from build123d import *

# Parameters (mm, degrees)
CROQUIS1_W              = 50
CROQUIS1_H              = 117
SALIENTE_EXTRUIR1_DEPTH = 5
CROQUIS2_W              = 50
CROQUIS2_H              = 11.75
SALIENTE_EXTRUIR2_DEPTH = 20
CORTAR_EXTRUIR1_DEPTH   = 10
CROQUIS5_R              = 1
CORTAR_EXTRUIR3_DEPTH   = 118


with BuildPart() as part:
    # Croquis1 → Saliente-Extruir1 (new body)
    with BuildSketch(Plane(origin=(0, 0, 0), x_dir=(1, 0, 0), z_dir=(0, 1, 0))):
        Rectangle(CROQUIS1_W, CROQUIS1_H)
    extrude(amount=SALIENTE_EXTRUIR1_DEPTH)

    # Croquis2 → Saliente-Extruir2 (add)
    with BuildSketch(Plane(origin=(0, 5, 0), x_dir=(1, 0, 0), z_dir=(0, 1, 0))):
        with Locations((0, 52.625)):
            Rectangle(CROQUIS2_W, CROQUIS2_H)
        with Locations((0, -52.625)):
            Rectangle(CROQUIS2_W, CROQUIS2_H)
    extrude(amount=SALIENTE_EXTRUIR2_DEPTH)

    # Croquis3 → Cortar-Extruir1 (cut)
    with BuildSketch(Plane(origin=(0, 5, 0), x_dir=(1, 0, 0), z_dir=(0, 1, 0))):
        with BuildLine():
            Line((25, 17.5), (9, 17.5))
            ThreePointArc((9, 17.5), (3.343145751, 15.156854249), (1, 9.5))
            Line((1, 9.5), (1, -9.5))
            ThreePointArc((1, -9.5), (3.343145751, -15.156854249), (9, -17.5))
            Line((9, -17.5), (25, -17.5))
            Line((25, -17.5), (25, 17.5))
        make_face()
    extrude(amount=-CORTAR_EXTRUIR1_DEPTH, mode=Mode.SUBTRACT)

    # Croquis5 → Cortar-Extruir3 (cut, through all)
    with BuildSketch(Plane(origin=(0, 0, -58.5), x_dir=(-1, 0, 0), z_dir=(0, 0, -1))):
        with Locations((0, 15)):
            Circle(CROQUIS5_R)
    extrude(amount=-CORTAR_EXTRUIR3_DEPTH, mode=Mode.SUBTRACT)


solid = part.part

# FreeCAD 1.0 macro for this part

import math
import FreeCAD as App
import Part
import Sketcher


def add_polygon(sketch, points):
    """Adds a closed chain of lines whose ends are joined by coincident constraints."""
    first, n = sketch.GeometryCount, len(points)
    for a, b in zip(points, points[1:] + points[:1]):
        sketch.addGeometry(Part.LineSegment(App.Vector(*a, 0), App.Vector(*b, 0)), False)
    for i in range(n):
        sketch.addConstraint(Sketcher.Constraint("Coincident", first + i, 2, first + (i + 1) % n, 1))

doc = App.newDocument("Part")
body = doc.addObject("PartDesign::Body", "Body")

# Sketch on XZ plane
sketch1 = body.newObject("Sketcher::SketchObject", "Sketch")
sketch1.AttachmentSupport = (doc.getObject("XZ_Plane"), [""])
sketch1.MapMode = "FlatFace"
add_polygon(sketch1, [(-25, -58.5), (-25, 58.5), (25, 58.5), (25, -58.5)])  # lines 0-3
sketch1.addConstraint(Sketcher.Constraint("Vertical", 0))
sketch1.addConstraint(Sketcher.Constraint("Horizontal", 1))
sketch1.addConstraint(Sketcher.Constraint("Vertical", 2))
sketch1.addConstraint(Sketcher.Constraint("Horizontal", 3))
sketch1.addConstraint(Sketcher.Constraint("Symmetric", 0, 2, 2, 2, -1, 1))
sketch1.addConstraint(Sketcher.Constraint("DistanceX", 1, 1, 1, 2, 50.0))
sketch1.addConstraint(Sketcher.Constraint("DistanceY", 0, 1, 0, 2, 117.0))
pad1 = body.newObject("PartDesign::Pad", "Pad")
pad1.Profile = sketch1
pad1.Length = 5
pad1.Reversed = True

# Sketch on XZ plane
sketch2 = body.newObject("Sketcher::SketchObject", "Sketch001")
sketch2.AttachmentSupport = (doc.getObject("XZ_Plane"), [""])
sketch2.MapMode = "FlatFace"
sketch2.AttachmentOffset = App.Placement(App.Vector(0, 0, -5), App.Rotation())
add_polygon(sketch2, [(-25, -58.5), (-25, -46.75), (25, -46.75), (25, -58.5)])  # lines 0-3
add_polygon(sketch2, [(-25, 46.75), (-25, 58.5), (25, 58.5), (25, 46.75)])  # lines 4-7
sketch2.addConstraint(Sketcher.Constraint("Vertical", 0))
sketch2.addConstraint(Sketcher.Constraint("Horizontal", 1))
sketch2.addConstraint(Sketcher.Constraint("Vertical", 2))
sketch2.addConstraint(Sketcher.Constraint("Horizontal", 3))
sketch2.addConstraint(Sketcher.Constraint("Vertical", 4))
sketch2.addConstraint(Sketcher.Constraint("Horizontal", 5))
sketch2.addConstraint(Sketcher.Constraint("Vertical", 6))
sketch2.addConstraint(Sketcher.Constraint("Horizontal", 7))
sketch2.addConstraint(Sketcher.Constraint("Symmetric", 2, 2, 4, 2, -1, 1))
sketch2.addConstraint(Sketcher.Constraint("Symmetric", 0, 2, 6, 2, -1, 1))
sketch2.addConstraint(Sketcher.Constraint("Vertical", 3, 2, 4, 2))
sketch2.addConstraint(Sketcher.Constraint("DistanceX", 1, 1, 1, 2, 50.0))
sketch2.addConstraint(Sketcher.Constraint("DistanceY", 3, 2, 4, 2, 117.0))
sketch2.addConstraint(Sketcher.Constraint("DistanceY", 0, 1, 0, 2, 11.75))
pad2 = body.newObject("PartDesign::Pad", "Pad001")
pad2.Profile = sketch2
pad2.Length = 20
pad2.Reversed = True

# Sketch on XZ plane
sketch3 = body.newObject("Sketcher::SketchObject", "Sketch002")
sketch3.AttachmentSupport = (doc.getObject("XZ_Plane"), [""])
sketch3.MapMode = "FlatFace"
sketch3.AttachmentOffset = App.Placement(App.Vector(0, 0, -5), App.Rotation())
sketch3.addGeometry(Part.LineSegment(App.Vector(25, -17.5, 0), App.Vector(9, -17.5, 0)), False)
sketch3.addGeometry(Part.ArcOfCircle(Part.Circle(App.Vector(9, -9.5, 0), App.Vector(0, 0, 1), 8), math.radians(-180), math.radians(-90)), False)
sketch3.addGeometry(Part.LineSegment(App.Vector(1, -9.5, 0), App.Vector(1, 9.5, 0)), False)
sketch3.addGeometry(Part.ArcOfCircle(Part.Circle(App.Vector(9, 9.5, 0), App.Vector(0, 0, 1), 8), math.radians(90), math.radians(180)), False)
sketch3.addGeometry(Part.LineSegment(App.Vector(9, 17.5, 0), App.Vector(25, 17.5, 0)), False)
sketch3.addGeometry(Part.LineSegment(App.Vector(25, 17.5, 0), App.Vector(25, -17.5, 0)), False)
sketch3.addConstraint(Sketcher.Constraint("Tangent", 0, 2, 1, 2))
sketch3.addConstraint(Sketcher.Constraint("Tangent", 1, 1, 2, 1))
sketch3.addConstraint(Sketcher.Constraint("Tangent", 2, 2, 3, 2))
sketch3.addConstraint(Sketcher.Constraint("Tangent", 3, 1, 4, 1))
sketch3.addConstraint(Sketcher.Constraint("Coincident", 4, 2, 5, 1))
sketch3.addConstraint(Sketcher.Constraint("Coincident", 5, 2, 0, 1))
sketch3.addConstraint(Sketcher.Constraint("Horizontal", 0))
sketch3.addConstraint(Sketcher.Constraint("Vertical", 2))
sketch3.addConstraint(Sketcher.Constraint("Horizontal", 4))
sketch3.addConstraint(Sketcher.Constraint("Vertical", 5))
sketch3.addConstraint(Sketcher.Constraint("Equal", 1, 3))
sketch3.addConstraint(Sketcher.Constraint("Radius", 1, 8.0))
sketch3.addConstraint(Sketcher.Constraint("DistanceX", 0, 2, 0, 1, 16.0))
sketch3.addConstraint(Sketcher.Constraint("DistanceY", 2, 1, 2, 2, 19.0))
sketch3.addConstraint(Sketcher.Constraint("DistanceX", -1, 1, 1, 3, 9.0))
sketch3.addConstraint(Sketcher.Constraint("DistanceY", 1, 3, -1, 1, 9.5))
pocket1 = body.newObject("PartDesign::Pocket", "Pocket")
pocket1.Profile = sketch3
pocket1.Length = 10
pocket1.Reversed = True

# Sketch on XY plane
sketch4 = body.newObject("Sketcher::SketchObject", "Sketch003")
sketch4.AttachmentSupport = (doc.getObject("XY_Plane"), [""])
sketch4.MapMode = "FlatFace"
sketch4.AttachmentOffset = App.Placement(App.Vector(0, 0, -58.5), App.Rotation())
sketch4.addGeometry(Part.Circle(App.Vector(0, 15, 0), App.Vector(0, 0, 1), 1), False)
sketch4.addConstraint(Sketcher.Constraint("PointOnObject", 0, 3, -2))
sketch4.addConstraint(Sketcher.Constraint("Diameter", 0, 2.0))
sketch4.addConstraint(Sketcher.Constraint("DistanceY", -1, 1, 0, 3, 15.0))
pocket2 = body.newObject("PartDesign::Pocket", "Pocket001")
pocket2.Profile = sketch4
pocket2.Type = "ThroughAll"
pocket2.Reversed = True

doc.recompute()
